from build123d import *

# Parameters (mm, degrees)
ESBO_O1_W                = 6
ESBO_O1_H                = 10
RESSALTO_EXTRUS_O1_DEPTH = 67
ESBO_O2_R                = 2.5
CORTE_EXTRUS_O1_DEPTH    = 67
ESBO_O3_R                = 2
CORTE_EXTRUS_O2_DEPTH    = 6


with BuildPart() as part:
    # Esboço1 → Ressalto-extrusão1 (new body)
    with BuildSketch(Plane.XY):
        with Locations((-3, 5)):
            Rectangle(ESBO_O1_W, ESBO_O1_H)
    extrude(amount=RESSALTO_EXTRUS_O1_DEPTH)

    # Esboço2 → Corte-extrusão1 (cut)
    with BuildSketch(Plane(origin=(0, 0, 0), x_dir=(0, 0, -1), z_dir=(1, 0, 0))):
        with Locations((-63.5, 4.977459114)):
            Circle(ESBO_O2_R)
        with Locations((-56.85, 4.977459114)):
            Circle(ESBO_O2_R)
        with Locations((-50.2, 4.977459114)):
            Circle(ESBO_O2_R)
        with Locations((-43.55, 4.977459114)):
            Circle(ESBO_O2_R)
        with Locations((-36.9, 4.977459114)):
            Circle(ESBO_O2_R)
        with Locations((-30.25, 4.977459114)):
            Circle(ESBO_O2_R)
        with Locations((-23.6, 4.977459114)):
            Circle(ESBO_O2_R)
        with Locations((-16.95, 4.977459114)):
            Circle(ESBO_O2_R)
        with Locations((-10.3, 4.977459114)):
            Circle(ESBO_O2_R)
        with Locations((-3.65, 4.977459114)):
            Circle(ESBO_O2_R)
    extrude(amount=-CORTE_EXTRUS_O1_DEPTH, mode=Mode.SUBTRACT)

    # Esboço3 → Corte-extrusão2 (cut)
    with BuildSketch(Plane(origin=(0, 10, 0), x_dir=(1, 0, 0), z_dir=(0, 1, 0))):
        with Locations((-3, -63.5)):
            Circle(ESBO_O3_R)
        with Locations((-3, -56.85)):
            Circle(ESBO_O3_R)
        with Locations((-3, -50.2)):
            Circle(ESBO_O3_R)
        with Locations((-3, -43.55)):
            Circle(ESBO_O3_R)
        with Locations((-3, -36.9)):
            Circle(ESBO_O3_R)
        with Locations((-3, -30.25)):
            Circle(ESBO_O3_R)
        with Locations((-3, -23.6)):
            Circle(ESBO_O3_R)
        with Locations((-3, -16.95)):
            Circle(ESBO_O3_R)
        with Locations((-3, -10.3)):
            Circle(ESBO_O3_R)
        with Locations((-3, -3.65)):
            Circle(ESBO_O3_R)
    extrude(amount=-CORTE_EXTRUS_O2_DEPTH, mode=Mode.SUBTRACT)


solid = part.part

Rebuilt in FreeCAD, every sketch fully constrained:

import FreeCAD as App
import Part
import Sketcher
from FreeCAD import Vector

doc = App.newDocument("Part")
body = doc.addObject("PartDesign::Body", "Body")

# Sketch on XY plane
sketch1 = doc.addObject("Sketcher::SketchObject", "Sketch")
body.addObject(sketch1)
sketch1.AttachmentSupport = (doc.XY_Plane, [""])
sketch1.MapMode = "FlatFace"
sketch1.addGeometry([
    Part.LineSegment(Vector(-6, 10, 0), Vector(-6, 0, 0)),
    Part.LineSegment(Vector(-6, 0, 0), Vector(0, 0, 0)),
    Part.LineSegment(Vector(0, 0, 0), Vector(0, 10, 0)),
    Part.LineSegment(Vector(0, 10, 0), Vector(-6, 10, 0)),
], False)
sketch1.addConstraint([
    Sketcher.Constraint("Coincident", 0, 2, 1, 1),
    Sketcher.Constraint("Coincident", 1, 2, 2, 1),
    Sketcher.Constraint("Coincident", 2, 2, 3, 1),
    Sketcher.Constraint("Coincident", 3, 2, 0, 1),
    Sketcher.Constraint("Vertical", 0),
    Sketcher.Constraint("Horizontal", 1),
    Sketcher.Constraint("Vertical", 2),
    Sketcher.Constraint("Horizontal", 3),
    Sketcher.Constraint("Coincident", 1, 2, -1, 1),
    Sketcher.Constraint("DistanceX", 1, 1, 1, 2, 6.0),
    Sketcher.Constraint("DistanceY", 0, 2, 0, 1, 10.0),
])
pad1 = doc.addObject("PartDesign::Pad", "Pad")
body.addObject(pad1)
pad1.Profile = sketch1
pad1.Length = 67

# Sketch on YZ plane
sketch2 = doc.addObject("Sketcher::SketchObject", "Sketch001")
body.addObject(sketch2)
sketch2.AttachmentSupport = (doc.YZ_Plane, [""])
sketch2.MapMode = "FlatFace"
sketch2.addGeometry([
    Part.Circle(Vector(5, 63.5, 0), Vector(0, 0, 1), 2.5),  # 0
    Part.Circle(Vector(5, 56.9, 0), Vector(0, 0, 1), 2.5),  # 1
    Part.Circle(Vector(5, 50.2, 0), Vector(0, 0, 1), 2.5),  # 2
    Part.Circle(Vector(5, 43.5, 0), Vector(0, 0, 1), 2.5),  # 3
    Part.Circle(Vector(5, 36.9, 0), Vector(0, 0, 1), 2.5),  # 4
    Part.Circle(Vector(5, 30.2, 0), Vector(0, 0, 1), 2.5),  # 5
    Part.Circle(Vector(5, 23.6, 0), Vector(0, 0, 1), 2.5),  # 6
    Part.Circle(Vector(5, 16.9, 0), Vector(0, 0, 1), 2.5),  # 7
    Part.Circle(Vector(5, 10.3, 0), Vector(0, 0, 1), 2.5),  # 8
    Part.Circle(Vector(5, 3.6, 0), Vector(0, 0, 1), 2.5),  # 9
], False)
sketch2.addConstraint([
    Sketcher.Constraint("Equal", 0, 1),
    Sketcher.Constraint("Equal", 1, 2),
    Sketcher.Constraint("Equal", 2, 3),
    Sketcher.Constraint("Equal", 3, 4),
    Sketcher.Constraint("Equal", 4, 5),
    Sketcher.Constraint("Equal", 5, 6),
    Sketcher.Constraint("Equal", 6, 7),
    Sketcher.Constraint("Equal", 7, 8),
    Sketcher.Constraint("Equal", 8, 9),
    Sketcher.Constraint("Vertical", 0, 3, 1, 3),
    Sketcher.Constraint("Vertical", 1, 3, 2, 3),
    Sketcher.Constraint("Vertical", 2, 3, 3, 3),
    Sketcher.Constraint("Vertical", 3, 3, 4, 3),
    Sketcher.Constraint("Vertical", 4, 3, 5, 3),
    Sketcher.Constraint("Vertical", 5, 3, 6, 3),
    Sketcher.Constraint("Vertical", 6, 3, 7, 3),
    Sketcher.Constraint("Vertical", 7, 3, 8, 3),
    Sketcher.Constraint("Vertical", 8, 3, 9, 3),
    Sketcher.Constraint("Diameter", 0, 5.0),
    Sketcher.Constraint("DistanceY", -1, 1, 0, 3, 63.5),
    Sketcher.Constraint("DistanceY", -1, 1, 2, 3, 50.2),
    Sketcher.Constraint("DistanceY", -1, 1, 4, 3, 36.9),
    Sketcher.Constraint("DistanceY", -1, 1, 6, 3, 23.6),
    Sketcher.Constraint("DistanceY", -1, 1, 8, 3, 10.3),
    Sketcher.Constraint("DistanceY", 3, 3, 1, 3, 13.3),
    Sketcher.Constraint("DistanceY", 5, 3, 3, 3, 13.3),
    Sketcher.Constraint("DistanceY", 7, 3, 5, 3, 13.3),
    Sketcher.Constraint("DistanceY", 9, 3, 7, 3, 13.3),
    Sketcher.Constraint("DistanceY", -1, 1, 1, 3, 56.85),
    Sketcher.Constraint("DistanceX", -1, 1, 0, 3, 4.977459),
])
pocket1 = doc.addObject("PartDesign::Pocket", "Pocket")
body.addObject(pocket1)
pocket1.Profile = sketch2
pocket1.Length = 67

# Sketch on XZ plane
sketch3 = doc.addObject("Sketcher::SketchObject", "Sketch002")
body.addObject(sketch3)
sketch3.AttachmentSupport = (doc.XZ_Plane, [""])
sketch3.MapMode = "FlatFace"
sketch3.AttachmentOffset = App.Placement(Vector(0, 0, -10), App.Rotation())
sketch3.addGeometry([
    Part.Circle(Vector(-3, 63.5, 0), Vector(0, 0, 1), 2),  # 0
    Part.Circle(Vector(-3, 56.9, 0), Vector(0, 0, 1), 2),  # 1
    Part.Circle(Vector(-3, 50.2, 0), Vector(0, 0, 1), 2),  # 2
    Part.Circle(Vector(-3, 43.5, 0), Vector(0, 0, 1), 2),  # 3
    Part.Circle(Vector(-3, 36.9, 0), Vector(0, 0, 1), 2),  # 4
    Part.Circle(Vector(-3, 30.2, 0), Vector(0, 0, 1), 2),  # 5
    Part.Circle(Vector(-3, 23.6, 0), Vector(0, 0, 1), 2),  # 6
    Part.Circle(Vector(-3, 16.9, 0), Vector(0, 0, 1), 2),  # 7
    Part.Circle(Vector(-3, 10.3, 0), Vector(0, 0, 1), 2),  # 8
    Part.Circle(Vector(-3, 3.6, 0), Vector(0, 0, 1), 2),  # 9
], False)
sketch3.addConstraint([
    Sketcher.Constraint("Equal", 0, 1),
    Sketcher.Constraint("Equal", 1, 2),
    Sketcher.Constraint("Equal", 2, 3),
    Sketcher.Constraint("Equal", 3, 4),
    Sketcher.Constraint("Equal", 4, 5),
    Sketcher.Constraint("Equal", 5, 6),
    Sketcher.Constraint("Equal", 6, 7),
    Sketcher.Constraint("Equal", 7, 8),
    Sketcher.Constraint("Equal", 8, 9),
    Sketcher.Constraint("Vertical", 0, 3, 1, 3),
    Sketcher.Constraint("Vertical", 1, 3, 2, 3),
    Sketcher.Constraint("Vertical", 2, 3, 3, 3),
    Sketcher.Constraint("Vertical", 3, 3, 4, 3),
    Sketcher.Constraint("Vertical", 4, 3, 5, 3),
    Sketcher.Constraint("Vertical", 5, 3, 6, 3),
    Sketcher.Constraint("Vertical", 6, 3, 7, 3),
    Sketcher.Constraint("Vertical", 7, 3, 8, 3),
    Sketcher.Constraint("Vertical", 8, 3, 9, 3),
    Sketcher.Constraint("Diameter", 0, 4.0),
    Sketcher.Constraint("DistanceX", 0, 3, -1, 1, 3.0),
    Sketcher.Constraint("DistanceY", -1, 1, 0, 3, 63.5),
    Sketcher.Constraint("DistanceY", -1, 1, 2, 3, 50.2),
    Sketcher.Constraint("DistanceY", -1, 1, 4, 3, 36.9),
    Sketcher.Constraint("DistanceY", -1, 1, 6, 3, 23.6),
    Sketcher.Constraint("DistanceY", -1, 1, 8, 3, 10.3),
    Sketcher.Constraint("DistanceY", 3, 3, 1, 3, 13.3),
    Sketcher.Constraint("DistanceY", 5, 3, 3, 3, 13.3),
    Sketcher.Constraint("DistanceY", 7, 3, 5, 3, 13.3),
    Sketcher.Constraint("DistanceY", 9, 3, 7, 3, 13.3),
    Sketcher.Constraint("DistanceY", -1, 1, 1, 3, 56.85),
])
pocket2 = doc.addObject("PartDesign::Pocket", "Pocket001")
body.addObject(pocket2)
pocket2.Profile = sketch3
pocket2.Length = 6
pocket2.Reversed = True

doc.recompute()
